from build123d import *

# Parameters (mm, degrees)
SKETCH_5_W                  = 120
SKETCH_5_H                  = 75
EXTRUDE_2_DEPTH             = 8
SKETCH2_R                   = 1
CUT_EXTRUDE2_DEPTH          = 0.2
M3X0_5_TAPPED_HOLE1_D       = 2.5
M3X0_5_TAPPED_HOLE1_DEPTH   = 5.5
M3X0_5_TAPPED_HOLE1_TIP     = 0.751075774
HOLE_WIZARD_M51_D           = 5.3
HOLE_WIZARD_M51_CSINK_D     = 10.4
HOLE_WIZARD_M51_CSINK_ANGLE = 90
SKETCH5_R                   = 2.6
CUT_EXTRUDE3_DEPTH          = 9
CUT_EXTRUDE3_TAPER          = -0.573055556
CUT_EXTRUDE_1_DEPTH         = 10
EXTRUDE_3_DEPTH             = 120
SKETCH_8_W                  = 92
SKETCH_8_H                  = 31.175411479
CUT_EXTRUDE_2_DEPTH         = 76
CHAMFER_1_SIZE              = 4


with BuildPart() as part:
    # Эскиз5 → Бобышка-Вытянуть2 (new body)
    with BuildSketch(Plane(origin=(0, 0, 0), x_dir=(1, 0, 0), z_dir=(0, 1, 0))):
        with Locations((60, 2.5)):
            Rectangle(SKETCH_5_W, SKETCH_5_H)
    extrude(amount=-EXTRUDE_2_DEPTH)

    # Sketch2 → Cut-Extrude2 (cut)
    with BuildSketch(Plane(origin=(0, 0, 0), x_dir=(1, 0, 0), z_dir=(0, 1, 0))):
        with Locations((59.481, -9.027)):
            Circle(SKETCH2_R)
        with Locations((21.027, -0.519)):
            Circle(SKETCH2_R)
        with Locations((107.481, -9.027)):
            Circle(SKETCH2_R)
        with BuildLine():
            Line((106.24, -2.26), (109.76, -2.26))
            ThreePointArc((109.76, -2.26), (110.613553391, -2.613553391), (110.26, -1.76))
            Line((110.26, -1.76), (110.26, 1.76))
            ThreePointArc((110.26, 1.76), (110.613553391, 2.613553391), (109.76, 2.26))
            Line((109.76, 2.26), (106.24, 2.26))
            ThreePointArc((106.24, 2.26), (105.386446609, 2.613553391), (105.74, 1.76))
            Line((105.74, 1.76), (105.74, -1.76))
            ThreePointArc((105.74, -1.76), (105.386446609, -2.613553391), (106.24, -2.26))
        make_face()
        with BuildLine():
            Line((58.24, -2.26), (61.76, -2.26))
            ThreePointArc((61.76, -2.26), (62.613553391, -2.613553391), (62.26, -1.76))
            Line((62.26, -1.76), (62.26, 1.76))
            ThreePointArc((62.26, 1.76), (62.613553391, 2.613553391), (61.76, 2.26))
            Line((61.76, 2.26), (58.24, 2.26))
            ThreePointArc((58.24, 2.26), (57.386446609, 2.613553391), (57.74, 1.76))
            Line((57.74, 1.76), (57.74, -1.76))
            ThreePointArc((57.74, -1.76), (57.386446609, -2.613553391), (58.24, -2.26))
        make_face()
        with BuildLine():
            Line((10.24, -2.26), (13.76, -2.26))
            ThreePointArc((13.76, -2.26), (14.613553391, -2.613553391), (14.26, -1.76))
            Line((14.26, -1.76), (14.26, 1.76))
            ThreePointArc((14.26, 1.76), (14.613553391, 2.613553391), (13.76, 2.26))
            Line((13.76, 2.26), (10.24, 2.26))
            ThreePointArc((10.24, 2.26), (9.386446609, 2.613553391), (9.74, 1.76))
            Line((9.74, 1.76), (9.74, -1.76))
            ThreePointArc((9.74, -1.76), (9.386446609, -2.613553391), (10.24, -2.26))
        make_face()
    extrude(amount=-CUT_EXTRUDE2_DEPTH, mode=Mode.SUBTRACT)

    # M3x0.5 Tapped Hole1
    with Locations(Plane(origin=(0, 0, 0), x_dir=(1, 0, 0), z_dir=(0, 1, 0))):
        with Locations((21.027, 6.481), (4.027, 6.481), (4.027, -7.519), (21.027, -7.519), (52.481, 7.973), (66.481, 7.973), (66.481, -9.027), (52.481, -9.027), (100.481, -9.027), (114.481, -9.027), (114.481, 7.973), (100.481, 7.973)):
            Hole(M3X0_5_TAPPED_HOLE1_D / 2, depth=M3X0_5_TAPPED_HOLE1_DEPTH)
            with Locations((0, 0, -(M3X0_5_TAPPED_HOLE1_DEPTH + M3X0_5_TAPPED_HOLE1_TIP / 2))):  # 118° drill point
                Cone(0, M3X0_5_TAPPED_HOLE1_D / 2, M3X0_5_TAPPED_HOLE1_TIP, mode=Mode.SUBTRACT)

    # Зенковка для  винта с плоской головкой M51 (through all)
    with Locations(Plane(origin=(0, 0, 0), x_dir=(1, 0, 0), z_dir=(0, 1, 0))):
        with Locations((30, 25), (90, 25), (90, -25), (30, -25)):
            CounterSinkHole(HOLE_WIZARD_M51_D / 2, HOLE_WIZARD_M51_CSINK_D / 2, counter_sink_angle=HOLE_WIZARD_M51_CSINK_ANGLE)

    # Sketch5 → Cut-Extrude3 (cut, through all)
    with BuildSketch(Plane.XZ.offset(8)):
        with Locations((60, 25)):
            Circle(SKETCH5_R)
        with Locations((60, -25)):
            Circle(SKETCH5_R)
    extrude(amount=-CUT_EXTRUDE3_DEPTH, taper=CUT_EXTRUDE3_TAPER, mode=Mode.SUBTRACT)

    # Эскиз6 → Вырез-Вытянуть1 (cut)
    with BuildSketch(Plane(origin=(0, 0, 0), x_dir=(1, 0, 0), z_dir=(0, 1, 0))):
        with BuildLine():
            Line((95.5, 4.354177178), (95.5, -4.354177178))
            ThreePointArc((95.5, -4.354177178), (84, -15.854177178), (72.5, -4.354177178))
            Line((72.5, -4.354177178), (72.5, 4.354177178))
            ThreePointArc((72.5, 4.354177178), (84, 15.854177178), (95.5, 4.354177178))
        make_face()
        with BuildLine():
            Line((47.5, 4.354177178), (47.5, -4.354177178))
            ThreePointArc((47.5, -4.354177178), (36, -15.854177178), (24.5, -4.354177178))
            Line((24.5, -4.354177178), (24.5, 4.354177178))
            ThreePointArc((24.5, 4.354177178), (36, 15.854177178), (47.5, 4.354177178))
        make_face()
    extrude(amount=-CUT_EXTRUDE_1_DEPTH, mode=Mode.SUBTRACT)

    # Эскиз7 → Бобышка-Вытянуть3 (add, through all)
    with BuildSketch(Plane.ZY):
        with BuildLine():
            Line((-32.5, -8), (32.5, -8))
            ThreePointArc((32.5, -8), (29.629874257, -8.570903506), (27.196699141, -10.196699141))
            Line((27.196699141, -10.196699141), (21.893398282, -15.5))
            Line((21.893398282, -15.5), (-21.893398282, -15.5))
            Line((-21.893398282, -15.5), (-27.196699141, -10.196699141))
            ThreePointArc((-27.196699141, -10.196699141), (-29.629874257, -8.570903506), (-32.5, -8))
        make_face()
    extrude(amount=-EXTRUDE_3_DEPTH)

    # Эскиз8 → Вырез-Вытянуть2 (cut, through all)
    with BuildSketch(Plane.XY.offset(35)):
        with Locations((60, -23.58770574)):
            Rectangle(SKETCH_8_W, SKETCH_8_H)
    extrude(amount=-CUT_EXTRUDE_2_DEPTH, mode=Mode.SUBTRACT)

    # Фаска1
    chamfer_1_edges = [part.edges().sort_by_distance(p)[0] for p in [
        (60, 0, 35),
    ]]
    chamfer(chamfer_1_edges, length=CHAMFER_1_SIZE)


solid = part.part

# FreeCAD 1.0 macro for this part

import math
import FreeCAD as App
import Part
import Sketcher

V = App.Vector
Q = App.Units.Quantity


def edges_at(feature, points):
    """Names of the edges that pass closest to the given points."""
    edges = feature.Shape.Edges
    near = lambda p: min(range(len(edges)), key=lambda i: edges[i].distToShape(Part.Vertex(*p))[0])
    return sorted({f"Edge{near(p) + 1}" for p in points})

doc = App.newDocument("Part")
body = doc.addObject("PartDesign::Body", "Body")

# Sketch on XZ plane
sketch1 = body.newObject("Sketcher::SketchObject", "Sketch")
sketch1.AttachmentSupport = (doc.getObject("XZ_Plane"), [""])
sketch1.MapMode = "FlatFace"
sketch1.addGeometry([
    Part.LineSegment(V(0, -40, 0), V(0, 35, 0)),
    Part.LineSegment(V(0, 35, 0), V(120, 35, 0)),
    Part.LineSegment(V(120, 35, 0), V(120, -40, 0)),
    Part.LineSegment(V(120, -40, 0), V(0, -40, 0)),
], False)
sketch1.addConstraint([
    Sketcher.Constraint("Coincident", 0, 2, 1, 1),
    Sketcher.Constraint("Coincident", 1, 2, 2, 1),
    Sketcher.Constraint("Coincident", 2, 2, 3, 1),
    Sketcher.Constraint("Coincident", 3, 2, 0, 1),
    Sketcher.Constraint("Vertical", 0),
    Sketcher.Constraint("Horizontal", 1),
    Sketcher.Constraint("Vertical", 2),
    Sketcher.Constraint("Horizontal", 3),
    Sketcher.Constraint("PointOnObject", 0, 2, -2),
    Sketcher.Constraint("DistanceX", 1, 1, 1, 2, Q("120 mm")),
    Sketcher.Constraint("DistanceY", 0, 1, 0, 2, Q("75 mm")),
    Sketcher.Constraint("DistanceY", -1, 1, 0, 2, Q("35 mm")),
])
pad1 = body.newObject("PartDesign::Pad", "Pad")
pad1.Profile = sketch1
pad1.Length = 8

# Sketch on XZ plane
sketch2 = body.newObject("Sketcher::SketchObject", "Sketch001")
sketch2.AttachmentSupport = (doc.getObject("XZ_Plane"), [""])
sketch2.MapMode = "FlatFace"
sketch2.addGeometry([
    Part.Circle(V(59.5, 9, 0), V(0, 0, 1), 1),  # 0
    Part.Circle(V(21, 0.5, 0), V(0, 0, 1), 1),  # 1
    Part.Circle(V(107.5, 9, 0), V(0, 0, 1), 1),  # 2
    Part.LineSegment(V(106.2, 2.3, 0), V(109.8, 2.3, 0)),  # 3
    Part.ArcOfCircle(Part.Circle(V(110.3, 2.3, 0), V(0, 0, 1), 0.5), math.radians(-90), math.radians(180)),  # 4
    Part.LineSegment(V(110.3, 1.8, 0), V(110.3, -1.8, 0)),  # 5
    Part.ArcOfCircle(Part.Circle(V(110.3, -2.3, 0), V(0, 0, 1), 0.5), math.radians(180), math.radians(450)),  # 6
    Part.LineSegment(V(109.8, -2.3, 0), V(106.2, -2.3, 0)),  # 7
    Part.ArcOfCircle(Part.Circle(V(105.7, -2.3, 0), V(0, 0, 1), 0.5), math.radians(90), math.radians(360)),  # 8
    Part.LineSegment(V(105.7, -1.8, 0), V(105.7, 1.8, 0)),  # 9
    Part.ArcOfCircle(Part.Circle(V(105.7, 2.3, 0), V(0, 0, 1), 0.5), math.radians(0), math.radians(270)),  # 10
    Part.LineSegment(V(58.2, 2.3, 0), V(61.8, 2.3, 0)),  # 11
    Part.ArcOfCircle(Part.Circle(V(62.3, 2.3, 0), V(0, 0, 1), 0.5), math.radians(-90), math.radians(180)),  # 12
    Part.LineSegment(V(62.3, 1.8, 0), V(62.3, -1.8, 0)),  # 13
    Part.ArcOfCircle(Part.Circle(V(62.3, -2.3, 0), V(0, 0, 1), 0.5), math.radians(180), math.radians(450)),  # 14
    Part.LineSegment(V(61.8, -2.3, 0), V(58.2, -2.3, 0)),  # 15
    Part.ArcOfCircle(Part.Circle(V(57.7, -2.3, 0), V(0, 0, 1), 0.5), math.radians(90), math.radians(360)),  # 16
    Part.LineSegment(V(57.7, -1.8, 0), V(57.7, 1.8, 0)),  # 17
    Part.ArcOfCircle(Part.Circle(V(57.7, 2.3, 0), V(0, 0, 1), 0.5), math.radians(0), math.radians(270)),  # 18
    Part.LineSegment(V(10.2, 2.3, 0), V(13.8, 2.3, 0)),  # 19
    Part.ArcOfCircle(Part.Circle(V(14.3, 2.3, 0), V(0, 0, 1), 0.5), math.radians(-90), math.radians(180)),  # 20
    Part.LineSegment(V(14.3, 1.8, 0), V(14.3, -1.8, 0)),  # 21
    Part.ArcOfCircle(Part.Circle(V(14.3, -2.3, 0), V(0, 0, 1), 0.5), math.radians(180), math.radians(450)),  # 22
    Part.LineSegment(V(13.8, -2.3, 0), V(10.2, -2.3, 0)),  # 23
    Part.ArcOfCircle(Part.Circle(V(9.7, -2.3, 0), V(0, 0, 1), 0.5), math.radians(90), math.radians(360)),  # 24
    Part.LineSegment(V(9.7, -1.8, 0), V(9.7, 1.8, 0)),  # 25
    Part.ArcOfCircle(Part.Circle(V(9.7, 2.3, 0), V(0, 0, 1), 0.5), math.radians(0), math.radians(270)),  # 26
], False)
sketch2.addConstraint([
    Sketcher.Constraint("Coincident", 3, 2, 4, 2),
    Sketcher.Constraint("Coincident", 4, 1, 5, 1),
    Sketcher.Constraint("Coincident", 5, 2, 6, 2),
    Sketcher.Constraint("Coincident", 6, 1, 7, 1),
    Sketcher.Constraint("Coincident", 7, 2, 8, 2),
    Sketcher.Constraint("Coincident", 8, 1, 9, 1),
    Sketcher.Constraint("Coincident", 9, 2, 10, 2),
    Sketcher.Constraint("Coincident", 10, 1, 3, 1),
    Sketcher.Constraint("Coincident", 11, 2, 12, 2),
    Sketcher.Constraint("Coincident", 12, 1, 13, 1),
    Sketcher.Constraint("Coincident", 13, 2, 14, 2),
    Sketcher.Constraint("Coincident", 14, 1, 15, 1),
    Sketcher.Constraint("Coincident", 15, 2, 16, 2),
    Sketcher.Constraint("Coincident", 16, 1, 17, 1),
    Sketcher.Constraint("Coincident", 17, 2, 18, 2),
    Sketcher.Constraint("Coincident", 18, 1, 11, 1),
    Sketcher.Constraint("Coincident", 19, 2, 20, 2),
    Sketcher.Constraint("Coincident", 20, 1, 21, 1),
    Sketcher.Constraint("Coincident", 21, 2, 22, 2),
    Sketcher.Constraint("Coincident", 22, 1, 23, 1),
    Sketcher.Constraint("Coincident", 23, 2, 24, 2),
    Sketcher.Constraint("Coincident", 24, 1, 25, 1),
    Sketcher.Constraint("Coincident", 25, 2, 26, 2),
    Sketcher.Constraint("Coincident", 26, 1, 19, 1),
    Sketcher.Constraint("Horizontal", 3),
    Sketcher.Constraint("Vertical", 5),
    Sketcher.Constraint("Horizontal", 7),
    Sketcher.Constraint("Vertical", 9),
    Sketcher.Constraint("Horizontal", 11),
    Sketcher.Constraint("Vertical", 13),
    Sketcher.Constraint("Horizontal", 15),
    Sketcher.Constraint("Vertical", 17),
    Sketcher.Constraint("Horizontal", 19),
    Sketcher.Constraint("Vertical", 21),
    Sketcher.Constraint("Horizontal", 23),
    Sketcher.Constraint("Vertical", 25),
    Sketcher.Constraint("Equal", 0, 1),
    Sketcher.Constraint("Equal", 1, 2),
    Sketcher.Constraint("Equal", 4, 6),
    Sketcher.Constraint("Equal", 6, 8),
    Sketcher.Constraint("Equal", 8, 10),
    Sketcher.Constraint("Equal", 10, 12),
    Sketcher.Constraint("Equal", 12, 14),
    Sketcher.Constraint("Equal", 14, 16),
    Sketcher.Constraint("Equal", 16, 18),
    Sketcher.Constraint("Equal", 18, 20),
    Sketcher.Constraint("Equal", 20, 22),
    Sketcher.Constraint("Equal", 22, 24),
    Sketcher.Constraint("Equal", 24, 26),
    Sketcher.Constraint("Symmetric", 4, 3, 6, 3, -1),
    Sketcher.Constraint("Symmetric", 8, 3, 10, 3, -1),
    Sketcher.Constraint("Symmetric", 12, 3, 14, 3, -1),
    Sketcher.Constraint("Symmetric", 16, 3, 18, 3, -1),
    Sketcher.Constraint("Symmetric", 20, 3, 22, 3, -1),
    Sketcher.Constraint("Symmetric", 24, 3, 26, 3, -1),
    Sketcher.Constraint("Horizontal", 0, 3, 2, 3),
    Sketcher.Constraint("Horizontal", 6, 3, 8, 3),
    Sketcher.Constraint("Horizontal", 10, 3, 12, 3),
    Sketcher.Constraint("Horizontal", 14, 3, 16, 3),
    Sketcher.Constraint("Horizontal", 18, 3, 20, 3),
    Sketcher.Constraint("Horizontal", 22, 3, 24, 3),
    Sketcher.Constraint("Horizontal", 26, 3, 3, 2),
    Sketcher.Constraint("Horizontal", 24, 3, 6, 1),
    Sketcher.Constraint("Horizontal", 10, 1, 11, 2),
    Sketcher.Constraint("Horizontal", 7, 2, 14, 1),
    Sketcher.Constraint("Horizontal", 18, 1, 19, 2),
    Sketcher.Constraint("Horizontal", 15, 2, 22, 1),
    Sketcher.Constraint("Vertical", 6, 3, 4, 1),
    Sketcher.Constraint("Vertical", 10, 3, 8, 1),
    Sketcher.Constraint("Vertical", 14, 3, 12, 1),
    Sketcher.Constraint("Vertical", 18, 3, 16, 1),
    Sketcher.Constraint("Vertical", 22, 3, 20, 1),
    Sketcher.Constraint("Vertical", 26, 3, 24, 1),
    Sketcher.Constraint("Equal", 7, 11),
    Sketcher.Constraint("Equal", 15, 19),
    Sketcher.Constraint("Equal", 23, 5),
    Sketcher.Constraint("Diameter", 0, Q("2 mm")),
    Sketcher.Constraint("Radius", 4, Q("0.5 mm")),
    Sketcher.Constraint("DistanceX", 0, 3, 2, 3, Q("48 mm")),
    Sketcher.Constraint("DistanceX", 16, 3, 8, 3, Q("48 mm")),
    Sketcher.Constraint("DistanceX", 20, 3, 12, 3, Q("48 mm")),
    Sketcher.Constraint("DistanceX", 3, 1, 3, 2, Q("3.52 mm")),
    Sketcher.Constraint("DistanceX", -1, 1, 4, 3, Q("110.26 mm")),
    Sketcher.Constraint("DistanceX", -1, 1, 0, 3, Q("59.481 mm")),
    Sketcher.Constraint("DistanceY", -1, 1, 0, 3, Q("9.027 mm")),
    Sketcher.Constraint("DistanceX", -1, 1, 1, 3, Q("21.027 mm")),
    Sketcher.Constraint("DistanceY", -1, 1, 1, 3, Q("0.519 mm")),
])
pocket1 = body.newObject("PartDesign::Pocket", "Pocket")
pocket1.Profile = sketch2
pocket1.Length = 0.2
pocket1.Reversed = True

# Sketch on XZ plane
sketch3 = body.newObject("Sketcher::SketchObject", "Sketch002")
sketch3.AttachmentSupport = (doc.getObject("XZ_Plane"), [""])
sketch3.MapMode = "FlatFace"
sketch3.addGeometry([
    Part.Circle(V(21, -6.5, 0), V(0, 0, 1), 1.2),  # 0
    Part.Circle(V(4, -6.5, 0), V(0, 0, 1), 1.2),  # 1
    Part.Circle(V(4, 7.5, 0), V(0, 0, 1), 1.2),  # 2
    Part.Circle(V(21, 7.5, 0), V(0, 0, 1), 1.2),  # 3
    Part.Circle(V(52.5, -8, 0), V(0, 0, 1), 1.2),  # 4
    Part.Circle(V(66.5, -8, 0), V(0, 0, 1), 1.2),  # 5
    Part.Circle(V(66.5, 9, 0), V(0, 0, 1), 1.2),  # 6
    Part.Circle(V(52.5, 9, 0), V(0, 0, 1), 1.2),  # 7
    Part.Circle(V(100.5, 9, 0), V(0, 0, 1), 1.2),  # 8
    Part.Circle(V(114.5, 9, 0), V(0, 0, 1), 1.2),  # 9
    Part.Circle(V(114.5, -8, 0), V(0, 0, 1), 1.2),  # 10
    Part.Circle(V(100.5, -8, 0), V(0, 0, 1), 1.2),  # 11
], False)
sketch3.addConstraint([
    Sketcher.Constraint("Equal", 0, 1),
    Sketcher.Constraint("Equal", 1, 2),
    Sketcher.Constraint("Equal", 2, 3),
    Sketcher.Constraint("Equal", 3, 4),
    Sketcher.Constraint("Equal", 4, 5),
    Sketcher.Constraint("Equal", 5, 6),
    Sketcher.Constraint("Equal", 6, 7),
    Sketcher.Constraint("Equal", 7, 8),
    Sketcher.Constraint("Equal", 8, 9),
    Sketcher.Constraint("Equal", 9, 10),
    Sketcher.Constraint("Equal", 10, 11),
    Sketcher.Constraint("Horizontal", 0, 3, 1, 3),
    Sketcher.Constraint("Horizontal", 2, 3, 3, 3),
    Sketcher.Constraint("Horizontal", 4, 3, 5, 3),
    Sketcher.Constraint("Horizontal", 6, 3, 7, 3),
    Sketcher.Constraint("Horizontal", 7, 3, 8, 3),
    Sketcher.Constraint("Horizontal", 8, 3, 9, 3),
    Sketcher.Constraint("Horizontal", 5, 3, 10, 3),
    Sketcher.Constraint("Horizontal", 10, 3, 11, 3),
    Sketcher.Constraint("Vertical", 1, 3, 2, 3),
    Sketcher.Constraint("Vertical", 0, 3, 3, 3),
    Sketcher.Constraint("Vertical", 5, 3, 6, 3),
    Sketcher.Constraint("Vertical", 4, 3, 7, 3),
    Sketcher.Constraint("Vertical", 9, 3, 10, 3),
    Sketcher.Constraint("Vertical", 8, 3, 11, 3),
    Sketcher.Constraint("Diameter", 0, Q("2.5 mm")),
    Sketcher.Constraint("DistanceX", 1, 3, 0, 3, Q("17 mm")),
    Sketcher.Constraint("DistanceY", 1, 3, 2, 3, Q("14 mm")),
    Sketcher.Constraint("DistanceX", 4, 3, 5, 3, Q("14 mm")),
    Sketcher.Constraint("DistanceY", 5, 3, 6, 3, Q("17 mm")),
    Sketcher.Constraint("DistanceX", 6, 3, 8, 3, Q("34 mm")),
    Sketcher.Constraint("DistanceX", 8, 3, 9, 3, Q("14 mm")),
    Sketcher.Constraint("DistanceX", -1, 1, 0, 3, Q("21.027 mm")),
    Sketcher.Constraint("DistanceY", 0, 3, -1, 1, Q("6.481 mm")),
    Sketcher.Constraint("DistanceX", -1, 1, 4, 3, Q("52.481 mm")),
    Sketcher.Constraint("DistanceY", 4, 3, -1, 1, Q("7.973 mm")),
])
doc.recompute()
hole = body.newObject("PartDesign::Hole", "Hole")
hole.Profile = sketch3
hole.ThreadType = "None"
hole.Diameter = 2.5
hole.DepthType = "Dimension"
hole.Depth = 5.5
hole.DrillPoint = "Angled"
hole.DrillPointAngle = 118
hole.Reversed = True

# Sketch on XZ plane
sketch4 = body.newObject("Sketcher::SketchObject", "Sketch003")
sketch4.AttachmentSupport = (doc.getObject("XZ_Plane"), [""])
sketch4.MapMode = "FlatFace"
sketch4.addGeometry([
    Part.Circle(V(30, -25, 0), V(0, 0, 1), 2.6),
    Part.Circle(V(90, -25, 0), V(0, 0, 1), 2.6),
    Part.Circle(V(90, 25, 0), V(0, 0, 1), 2.6),
    Part.Circle(V(30, 25, 0), V(0, 0, 1), 2.6),
], False)
sketch4.addConstraint([
    Sketcher.Constraint("Equal", 0, 1),
    Sketcher.Constraint("Equal", 1, 2),
    Sketcher.Constraint("Equal", 2, 3),
    Sketcher.Constraint("Symmetric", 1, 3, 2, 3, -1),
    Sketcher.Constraint("Symmetric", 0, 3, 3, 3, -1),
    Sketcher.Constraint("Horizontal", 0, 3, 1, 3),
    Sketcher.Constraint("Diameter", 0, Q("5.3 mm")),
    Sketcher.Constraint("DistanceX", -1, 1, 0, 3, Q("30 mm")),
    Sketcher.Constraint("DistanceY", 0, 3, -1, 1, Q("25 mm")),
    Sketcher.Constraint("DistanceX", -1, 1, 1, 3, Q("90 mm")),
])
doc.recompute()
hole2 = body.newObject("PartDesign::Hole", "Hole001")
hole2.Profile = sketch4
hole2.ThreadType = "None"
hole2.Diameter = 5.3
hole2.DepthType = "ThroughAll"
hole2.HoleCutType = "Countersink"
hole2.HoleCutDiameter = 10.4
hole2.HoleCutCountersinkAngle = 90
hole2.Reversed = True

# Sketch on XZ plane
sketch5 = body.newObject("Sketcher::SketchObject", "Sketch004")
sketch5.AttachmentSupport = (doc.getObject("XZ_Plane"), [""])
sketch5.MapMode = "FlatFace"
sketch5.AttachmentOffset = App.Placement(V(0, 0, 8), App.Rotation())
sketch5.addGeometry([
    Part.Circle(V(60, 25, 0), V(0, 0, 1), 2.6),
    Part.Circle(V(60, -25, 0), V(0, 0, 1), 2.6),
], False)
sketch5.addConstraint([
    Sketcher.Constraint("Equal", 0, 1),
    Sketcher.Constraint("Symmetric", 0, 3, 1, 3, -1),
    Sketcher.Constraint("Diameter", 0, Q("5.2 mm")),
    Sketcher.Constraint("DistanceX", -1, 1, 0, 3, Q("60 mm")),
    Sketcher.Constraint("DistanceY", -1, 1, 0, 3, Q("25 mm")),
])
pocket2 = body.newObject("PartDesign::Pocket", "Pocket001")
pocket2.Profile = sketch5
pocket2.Length = 9
pocket2.TaperAngle = 0.573056

# Sketch on XZ plane
sketch6 = body.newObject("Sketcher::SketchObject", "Sketch005")
sketch6.AttachmentSupport = (doc.getObject("XZ_Plane"), [""])
sketch6.MapMode = "FlatFace"
sketch6.addGeometry([
    Part.LineSegment(V(96, 4, 0), V(96, -4, 0)),  # 0
    Part.ArcOfCircle(Part.Circle(V(84, -4, 0), V(0, 0, 1), 12), math.radians(180), math.radians(360)),  # 1
    Part.LineSegment(V(72, -4, 0), V(72, 4, 0)),  # 2
    Part.ArcOfCircle(Part.Circle(V(84, 4, 0), V(0, 0, 1), 12), math.radians(0), math.radians(180)),  # 3
    Part.LineSegment(V(48, 4, 0), V(48, -4, 0)),  # 4
    Part.ArcOfCircle(Part.Circle(V(36, -4, 0), V(0, 0, 1), 12), math.radians(180), math.radians(360)),  # 5
    Part.LineSegment(V(24, -4, 0), V(24, 4, 0)),  # 6
    Part.ArcOfCircle(Part.Circle(V(36, 4, 0), V(0, 0, 1), 12), math.radians(0), math.radians(180)),  # 7
], False)
sketch6.addConstraint([
    Sketcher.Constraint("Tangent", 0, 2, 1, 2),
    Sketcher.Constraint("Tangent", 1, 1, 2, 1),
    Sketcher.Constraint("Tangent", 2, 2, 3, 2),
    Sketcher.Constraint("Tangent", 3, 1, 0, 1),
    Sketcher.Constraint("Tangent", 4, 2, 5, 2),
    Sketcher.Constraint("Tangent", 5, 1, 6, 1),
    Sketcher.Constraint("Tangent", 6, 2, 7, 2),
    Sketcher.Constraint("Tangent", 7, 1, 4, 1),
    Sketcher.Constraint("Vertical", 0),
    Sketcher.Constraint("Vertical", 2),
    Sketcher.Constraint("Vertical", 4),
    Sketcher.Constraint("Vertical", 6),
    Sketcher.Constraint("Equal", 3, 5),
    Sketcher.Constraint("Horizontal", 1, 3, 5, 3),
    Sketcher.Constraint("Horizontal", 3, 3, 7, 3),
    Sketcher.Constraint("Radius", 1, Q("11.5 mm")),
    Sketcher.Constraint("DistanceX", -1, 1, 1, 3, Q("84 mm")),
    Sketcher.Constraint("DistanceX", -1, 1, 5, 3, Q("36 mm")),
    Sketcher.Constraint("DistanceY", 0, 2, 0, 1, Q("8.708354 mm")),
    Sketcher.Constraint("DistanceY", 1, 3, -1, 1, Q("4.354177 mm")),
])
pocket3 = body.newObject("PartDesign::Pocket", "Pocket002")
pocket3.Profile = sketch6
pocket3.Length = 10
pocket3.Reversed = True

# Sketch on YZ plane
sketch7 = body.newObject("Sketcher::SketchObject", "Sketch006")
sketch7.AttachmentSupport = (doc.getObject("YZ_Plane"), [""])
sketch7.MapMode = "FlatFace"
sketch7.addGeometry([
    Part.LineSegment(V(-8, 32, 0), V(-8, -32, 0)),  # 0
    Part.ArcOfCircle(Part.Circle(V(-15, -32, 0), V(0, 0, 1), 7), math.radians(0), math.radians(45)),  # 1
    Part.LineSegment(V(-10, -27, 0), V(-16, -22, 0)),  # 2
    Part.LineSegment(V(-16, -22, 0), V(-16, 22, 0)),  # 3
    Part.LineSegment(V(-16, 22, 0), V(-10, 27, 0)),  # 4
    Part.ArcOfCircle(Part.Circle(V(-15, 32, 0), V(0, 0, 1), 7), math.radians(-45), math.radians(0)),  # 5
], False)
sketch7.addConstraint([
    Sketcher.Constraint("Tangent", 0, 2, 1, 1),
    Sketcher.Constraint("Tangent", 1, 2, 2, 1),
    Sketcher.Constraint("Coincident", 2, 2, 3, 1),
    Sketcher.Constraint("Coincident", 3, 2, 4, 1),
    Sketcher.Constraint("Tangent", 4, 2, 5, 1),
    Sketcher.Constraint("Tangent", 5, 2, 0, 1),
    Sketcher.Constraint("Vertical", 0),
    Sketcher.Constraint("Vertical", 3),
    Sketcher.Constraint("Equal", 1, 5),
    Sketcher.Constraint("Symmetric", 1, 2, 4, 2, -1),
    Sketcher.Constraint("Perpendicular", 2, 4),
    Sketcher.Constraint("Vertical", 5, 3, 2, 2),
    Sketcher.Constraint("Radius", 1, Q("7.5 mm")),
    Sketcher.Constraint("DistanceY", 0, 2, 0, 1, Q("65 mm")),
    Sketcher.Constraint("DistanceX", 0, 2, -1, 1, Q("8 mm")),
])
pad2 = body.newObject("PartDesign::Pad", "Pad001")
pad2.Profile = sketch7
pad2.Length = 120

# Sketch on XY plane
sketch8 = body.newObject("Sketcher::SketchObject", "Sketch007")
sketch8.AttachmentSupport = (doc.getObject("XY_Plane"), [""])
sketch8.MapMode = "FlatFace"
sketch8.AttachmentOffset = App.Placement(V(0, 0, 35), App.Rotation())
sketch8.addGeometry([
    Part.LineSegment(V(14, -8, 0), V(14, -39, 0)),
    Part.LineSegment(V(14, -39, 0), V(106, -39, 0)),
    Part.LineSegment(V(106, -39, 0), V(106, -8, 0)),
    Part.LineSegment(V(106, -8, 0), V(14, -8, 0)),
], False)
sketch8.addConstraint([
    Sketcher.Constraint("Coincident", 0, 2, 1, 1),
    Sketcher.Constraint("Coincident", 1, 2, 2, 1),
    Sketcher.Constraint("Coincident", 2, 2, 3, 1),
    Sketcher.Constraint("Coincident", 3, 2, 0, 1),
    Sketcher.Constraint("Vertical", 0),
    Sketcher.Constraint("Horizontal", 1),
    Sketcher.Constraint("Vertical", 2),
    Sketcher.Constraint("Horizontal", 3),
    Sketcher.Constraint("DistanceX", 1, 1, 1, 2, Q("92 mm")),
    Sketcher.Constraint("DistanceX", -1, 1, 0, 2, Q("14 mm")),
    Sketcher.Constraint("DistanceY", 2, 2, -1, 1, Q("8 mm")),
    Sketcher.Constraint("DistanceY", 0, 2, 0, 1, Q("31.175411 mm")),
])
pocket4 = body.newObject("PartDesign::Pocket", "Pocket003")
pocket4.Profile = sketch8
pocket4.Type = "ThroughAll"
doc.recompute()

chamfer = body.newObject("PartDesign::Chamfer", "Chamfer")
chamfer.Base = (pocket4, edges_at(pocket4, [(60, 0, 35)]))
chamfer.Size = 4

doc.recompute()
